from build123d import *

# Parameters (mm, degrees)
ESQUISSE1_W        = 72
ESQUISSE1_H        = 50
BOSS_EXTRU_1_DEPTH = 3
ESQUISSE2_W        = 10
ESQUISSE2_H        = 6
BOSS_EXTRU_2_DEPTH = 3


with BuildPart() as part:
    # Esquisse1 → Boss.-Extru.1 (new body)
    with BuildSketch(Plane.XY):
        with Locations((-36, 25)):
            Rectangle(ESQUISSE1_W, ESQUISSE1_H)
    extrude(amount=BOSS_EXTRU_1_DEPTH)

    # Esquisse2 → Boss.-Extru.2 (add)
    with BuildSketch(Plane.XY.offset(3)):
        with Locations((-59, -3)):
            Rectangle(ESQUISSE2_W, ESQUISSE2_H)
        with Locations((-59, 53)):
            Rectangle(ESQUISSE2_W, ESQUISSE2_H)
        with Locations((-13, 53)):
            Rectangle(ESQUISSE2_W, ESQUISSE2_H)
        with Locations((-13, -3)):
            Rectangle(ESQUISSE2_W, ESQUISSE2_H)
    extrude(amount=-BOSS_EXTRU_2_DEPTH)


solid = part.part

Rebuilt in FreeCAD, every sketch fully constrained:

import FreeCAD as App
import Part
import Sketcher

V = App.Vector
Q = App.Units.Quantity

doc = App.newDocument("Part")
params = doc.addObject("Spreadsheet::Sheet", "Params")
for row, (alias, value) in enumerate([
    ("sketch1_width", "72 mm"),
    ("sketch1_height", "50 mm"),
    ("pad1_length", "3 mm"),
    ("sketch2_width", "10 mm"),
    ("sketch2_height", "6 mm"),
    ("pad2_length", "3 mm"),
], start=1):
    params.set(f"A{row}", alias)
    params.set(f"B{row}", "=" + value)
    params.setAlias(f"B{row}", alias)

body = doc.addObject("PartDesign::Body", "Body")

# Sketch on XY plane
sketch1 = body.newObject("Sketcher::SketchObject", "Sketch")
sketch1.AttachmentSupport = (doc.getObject("XY_Plane"), [""])
sketch1.MapMode = "FlatFace"
sketch1.addGeometry([
    Part.LineSegment(V(-72, 50, 0), V(-72, 0, 0)),
    Part.LineSegment(V(-72, 0, 0), V(0, 0, 0)),
    Part.LineSegment(V(0, 0, 0), V(0, 50, 0)),
    Part.LineSegment(V(0, 50, 0), V(-72, 50, 0)),
], False)
sketch1.addConstraint([
    Sketcher.Constraint("Coincident", 0, 2, 1, 1),
    Sketcher.Constraint("Coincident", 1, 2, 2, 1),
    Sketcher.Constraint("Coincident", 2, 2, 3, 1),
    Sketcher.Constraint("Coincident", 3, 2, 0, 1),
    Sketcher.Constraint("Vertical", 0),
    Sketcher.Constraint("Horizontal", 1),
    Sketcher.Constraint("Vertical", 2),
    Sketcher.Constraint("Horizontal", 3),
    Sketcher.Constraint("Coincident", 1, 2, -1, 1),
    Sketcher.Constraint("DistanceX", 1, 1, 1, 2, Q("72 mm")),
    Sketcher.Constraint("DistanceY", 0, 2, 0, 1, Q("50 mm")),
])
sketch1.setExpression("Constraints[9]", "Params.sketch1_width")
sketch1.setExpression("Constraints[10]", "Params.sketch1_height")
pad1 = body.newObject("PartDesign::Pad", "Pad")
pad1.Profile = sketch1
pad1.setExpression("Length", "Params.pad1_length")

# Sketch on XY plane
sketch2 = body.newObject("Sketcher::SketchObject", "Sketch001")
sketch2.AttachmentSupport = (doc.getObject("XY_Plane"), [""])
sketch2.MapMode = "FlatFace"
sketch2.AttachmentOffset = App.Placement(V(0, 0, 3), App.Rotation())
sketch2.addGeometry([
    Part.LineSegment(V(-64, 0, 0), V(-64, -6, 0)),  # 0
    Part.LineSegment(V(-64, -6, 0), V(-54, -6, 0)),  # 1
    Part.LineSegment(V(-54, -6, 0), V(-54, 0, 0)),  # 2
    Part.LineSegment(V(-54, 0, 0), V(-64, 0, 0)),  # 3
    Part.LineSegment(V(-64, 56, 0), V(-64, 50, 0)),  # 4
    Part.LineSegment(V(-64, 50, 0), V(-54, 50, 0)),  # 5
    Part.LineSegment(V(-54, 50, 0), V(-54, 56, 0)),  # 6
    Part.LineSegment(V(-54, 56, 0), V(-64, 56, 0)),  # 7
    Part.LineSegment(V(-18, 56, 0), V(-18, 50, 0)),  # 8
    Part.LineSegment(V(-18, 50, 0), V(-8, 50, 0)),  # 9
    Part.LineSegment(V(-8, 50, 0), V(-8, 56, 0)),  # 10
    Part.LineSegment(V(-8, 56, 0), V(-18, 56, 0)),  # 11
    Part.LineSegment(V(-18, 0, 0), V(-18, -6, 0)),  # 12
    Part.LineSegment(V(-18, -6, 0), V(-8, -6, 0)),  # 13
    Part.LineSegment(V(-8, -6, 0), V(-8, 0, 0)),  # 14
    Part.LineSegment(V(-8, 0, 0), V(-18, 0, 0)),  # 15
], False)
sketch2.addConstraint([
    Sketcher.Constraint("Coincident", 0, 2, 1, 1),
    Sketcher.Constraint("Coincident", 1, 2, 2, 1),
    Sketcher.Constraint("Coincident", 2, 2, 3, 1),
    Sketcher.Constraint("Coincident", 3, 2, 0, 1),
    Sketcher.Constraint("Coincident", 4, 2, 5, 1),
    Sketcher.Constraint("Coincident", 5, 2, 6, 1),
    Sketcher.Constraint("Coincident", 6, 2, 7, 1),
    Sketcher.Constraint("Coincident", 7, 2, 4, 1),
    Sketcher.Constraint("Coincident", 8, 2, 9, 1),
    Sketcher.Constraint("Coincident", 9, 2, 10, 1),
    Sketcher.Constraint("Coincident", 10, 2, 11, 1),
    Sketcher.Constraint("Coincident", 11, 2, 8, 1),
    Sketcher.Constraint("Coincident", 12, 2, 13, 1),
    Sketcher.Constraint("Coincident", 13, 2, 14, 1),
    Sketcher.Constraint("Coincident", 14, 2, 15, 1),
    Sketcher.Constraint("Coincident", 15, 2, 12, 1),
    Sketcher.Constraint("Vertical", 0),
    Sketcher.Constraint("Horizontal", 1),
    Sketcher.Constraint("Vertical", 2),
    Sketcher.Constraint("Horizontal", 3),
    Sketcher.Constraint("Vertical", 4),
    Sketcher.Constraint("Horizontal", 5),
    Sketcher.Constraint("Vertical", 6),
    Sketcher.Constraint("Horizontal", 7),
    Sketcher.Constraint("Vertical", 8),
    Sketcher.Constraint("Horizontal", 9),
    Sketcher.Constraint("Vertical", 10),
    Sketcher.Constraint("Horizontal", 11),
    Sketcher.Constraint("Vertical", 12),
    Sketcher.Constraint("Horizontal", 13),
    Sketcher.Constraint("Vertical", 14),
    Sketcher.Constraint("Horizontal", 15),
    Sketcher.Constraint("PointOnObject", 2, 2, -1),
    Sketcher.Constraint("PointOnObject", 14, 2, -1),
    Sketcher.Constraint("Horizontal", 5, 2, 8, 2),
    Sketcher.Constraint("Horizontal", 7, 2, 10, 2),
    Sketcher.Constraint("Horizontal", 1, 2, 12, 2),
    Sketcher.Constraint("Vertical", 3, 2, 4, 2),
    Sketcher.Constraint("Vertical", 2, 2, 5, 2),
    Sketcher.Constraint("Vertical", 11, 2, 12, 2),
    Sketcher.Constraint("Vertical", 10, 2, 13, 2),
    Sketcher.Constraint("Equal", 7, 9),
    Sketcher.Constraint("Equal", 2, 4),
    Sketcher.Constraint("DistanceX", 1, 1, 1, 2, Q("10 mm")),
    Sketcher.Constraint("DistanceY", 0, 2, 0, 1, Q("6 mm")),
    Sketcher.Constraint("DistanceX", 0, 2, -1, 1, Q("64 mm")),
    Sketcher.Constraint("DistanceY", -1, 1, 4, 2, Q("50 mm")),
    Sketcher.Constraint("DistanceX", 8, 2, -1, 1, Q("18 mm")),
])
sketch2.setExpression("Constraints[43]", "Params.sketch2_width")
sketch2.setExpression("Constraints[44]", "Params.sketch2_height")
pad2 = body.newObject("PartDesign::Pad", "Pad001")
pad2.Profile = sketch2
pad2.setExpression("Length", "Params.pad2_length")
pad2.Reversed = True

doc.recompute()
